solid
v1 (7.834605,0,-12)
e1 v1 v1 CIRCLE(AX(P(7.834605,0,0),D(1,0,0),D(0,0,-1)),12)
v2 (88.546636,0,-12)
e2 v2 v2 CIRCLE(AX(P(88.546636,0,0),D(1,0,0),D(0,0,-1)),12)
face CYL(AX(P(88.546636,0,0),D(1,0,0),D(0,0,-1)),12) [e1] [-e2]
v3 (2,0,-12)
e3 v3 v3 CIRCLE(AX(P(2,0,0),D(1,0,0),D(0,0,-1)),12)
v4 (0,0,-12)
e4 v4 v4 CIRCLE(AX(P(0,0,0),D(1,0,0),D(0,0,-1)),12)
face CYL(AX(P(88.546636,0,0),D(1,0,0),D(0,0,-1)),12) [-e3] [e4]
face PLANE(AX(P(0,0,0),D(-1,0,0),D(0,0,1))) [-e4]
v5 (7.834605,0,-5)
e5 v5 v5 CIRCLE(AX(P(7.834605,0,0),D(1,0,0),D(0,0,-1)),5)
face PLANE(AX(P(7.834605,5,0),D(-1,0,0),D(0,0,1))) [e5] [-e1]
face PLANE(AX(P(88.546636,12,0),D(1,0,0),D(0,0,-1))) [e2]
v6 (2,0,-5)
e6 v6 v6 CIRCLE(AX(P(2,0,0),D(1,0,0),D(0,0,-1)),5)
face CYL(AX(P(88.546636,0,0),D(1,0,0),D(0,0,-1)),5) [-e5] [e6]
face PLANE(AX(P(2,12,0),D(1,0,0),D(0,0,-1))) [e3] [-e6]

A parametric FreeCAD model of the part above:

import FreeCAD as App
import Part
import Sketcher
from FreeCAD import Vector

doc = App.newDocument("Part")
body = doc.addObject("PartDesign::Body", "Body")

# Sketch on XY plane
sketch1 = body.newObject("Sketcher::SketchObject", "Sketch")
sketch1.AttachmentSupport = (doc.getObject("XY_Plane"), [""])
sketch1.MapMode = "FlatFace"
sketch1.addGeometry(Part.LineSegment(Vector(0, 12, 0), Vector(0, 0, 0)), False)
sketch1.addGeometry(Part.LineSegment(Vector(0, 0, 0), Vector(88.546636, 0, 0)), False)
sketch1.addGeometry(Part.LineSegment(Vector(88.546636, 0, 0), Vector(88.546636, 12, 0)), False)
sketch1.addGeometry(Part.LineSegment(Vector(88.546636, 12, 0), Vector(7.834605, 12, 0)), False)
sketch1.addGeometry(Part.LineSegment(Vector(7.834605, 12, 0), Vector(7.834605, 5, 0)), False)
sketch1.addGeometry(Part.LineSegment(Vector(7.834605, 5, 0), Vector(2, 5, 0)), False)
sketch1.addGeometry(Part.LineSegment(Vector(2, 5, 0), Vector(2, 12, 0)), False)
sketch1.addGeometry(Part.LineSegment(Vector(2, 12, 0), Vector(0, 12, 0)), False)
sketch1.addConstraint(Sketcher.Constraint("Coincident", 0, 2, 1, 1))
sketch1.addConstraint(Sketcher.Constraint("Coincident", 1, 2, 2, 1))
sketch1.addConstraint(Sketcher.Constraint("Coincident", 2, 2, 3, 1))
sketch1.addConstraint(Sketcher.Constraint("Coincident", 3, 2, 4, 1))
sketch1.addConstraint(Sketcher.Constraint("Coincident", 4, 2, 5, 1))
sketch1.addConstraint(Sketcher.Constraint("Coincident", 5, 2, 6, 1))
sketch1.addConstraint(Sketcher.Constraint("Coincident", 6, 2, 7, 1))
sketch1.addConstraint(Sketcher.Constraint("Coincident", 7, 2, 0, 1))
sketch1.addConstraint(Sketcher.Constraint("Vertical", 0))
sketch1.addConstraint(Sketcher.Constraint("Horizontal", 1))
sketch1.addConstraint(Sketcher.Constraint("Vertical", 2))
sketch1.addConstraint(Sketcher.Constraint("Horizontal", 3))
sketch1.addConstraint(Sketcher.Constraint("Vertical", 4))
sketch1.addConstraint(Sketcher.Constraint("Horizontal", 5))
sketch1.addConstraint(Sketcher.Constraint("Vertical", 6))
sketch1.addConstraint(Sketcher.Constraint("Horizontal", 7))
sketch1.addConstraint(Sketcher.Constraint("Coincident", 0, 2, -1, 1))
sketch1.addConstraint(Sketcher.Constraint("Horizontal", 3, 2, 6, 2))
sketch1.addConstraint(Sketcher.Constraint("DistanceX", 7, 2, 7, 1, 2.0))
sketch1.addConstraint(Sketcher.Constraint("DistanceY", 0, 2, 0, 1, 12.0))
sketch1.addConstraint(Sketcher.Constraint("DistanceY", 4, 2, 4, 1, 7.0))
sketch1.addConstraint(Sketcher.Constraint("DistanceX", 3, 2, 3, 1, 80.712032))
sketch1.addConstraint(Sketcher.Constraint("DistanceX", 1, 1, 1, 2, 88.546636))
revolution = body.newObject("PartDesign::Revolution", "Revolution")
revolution.Profile = sketch1
revolution.ReferenceAxis = (sketch1, ["H_Axis"])
revolution.Angle = 360

doc.recompute()
